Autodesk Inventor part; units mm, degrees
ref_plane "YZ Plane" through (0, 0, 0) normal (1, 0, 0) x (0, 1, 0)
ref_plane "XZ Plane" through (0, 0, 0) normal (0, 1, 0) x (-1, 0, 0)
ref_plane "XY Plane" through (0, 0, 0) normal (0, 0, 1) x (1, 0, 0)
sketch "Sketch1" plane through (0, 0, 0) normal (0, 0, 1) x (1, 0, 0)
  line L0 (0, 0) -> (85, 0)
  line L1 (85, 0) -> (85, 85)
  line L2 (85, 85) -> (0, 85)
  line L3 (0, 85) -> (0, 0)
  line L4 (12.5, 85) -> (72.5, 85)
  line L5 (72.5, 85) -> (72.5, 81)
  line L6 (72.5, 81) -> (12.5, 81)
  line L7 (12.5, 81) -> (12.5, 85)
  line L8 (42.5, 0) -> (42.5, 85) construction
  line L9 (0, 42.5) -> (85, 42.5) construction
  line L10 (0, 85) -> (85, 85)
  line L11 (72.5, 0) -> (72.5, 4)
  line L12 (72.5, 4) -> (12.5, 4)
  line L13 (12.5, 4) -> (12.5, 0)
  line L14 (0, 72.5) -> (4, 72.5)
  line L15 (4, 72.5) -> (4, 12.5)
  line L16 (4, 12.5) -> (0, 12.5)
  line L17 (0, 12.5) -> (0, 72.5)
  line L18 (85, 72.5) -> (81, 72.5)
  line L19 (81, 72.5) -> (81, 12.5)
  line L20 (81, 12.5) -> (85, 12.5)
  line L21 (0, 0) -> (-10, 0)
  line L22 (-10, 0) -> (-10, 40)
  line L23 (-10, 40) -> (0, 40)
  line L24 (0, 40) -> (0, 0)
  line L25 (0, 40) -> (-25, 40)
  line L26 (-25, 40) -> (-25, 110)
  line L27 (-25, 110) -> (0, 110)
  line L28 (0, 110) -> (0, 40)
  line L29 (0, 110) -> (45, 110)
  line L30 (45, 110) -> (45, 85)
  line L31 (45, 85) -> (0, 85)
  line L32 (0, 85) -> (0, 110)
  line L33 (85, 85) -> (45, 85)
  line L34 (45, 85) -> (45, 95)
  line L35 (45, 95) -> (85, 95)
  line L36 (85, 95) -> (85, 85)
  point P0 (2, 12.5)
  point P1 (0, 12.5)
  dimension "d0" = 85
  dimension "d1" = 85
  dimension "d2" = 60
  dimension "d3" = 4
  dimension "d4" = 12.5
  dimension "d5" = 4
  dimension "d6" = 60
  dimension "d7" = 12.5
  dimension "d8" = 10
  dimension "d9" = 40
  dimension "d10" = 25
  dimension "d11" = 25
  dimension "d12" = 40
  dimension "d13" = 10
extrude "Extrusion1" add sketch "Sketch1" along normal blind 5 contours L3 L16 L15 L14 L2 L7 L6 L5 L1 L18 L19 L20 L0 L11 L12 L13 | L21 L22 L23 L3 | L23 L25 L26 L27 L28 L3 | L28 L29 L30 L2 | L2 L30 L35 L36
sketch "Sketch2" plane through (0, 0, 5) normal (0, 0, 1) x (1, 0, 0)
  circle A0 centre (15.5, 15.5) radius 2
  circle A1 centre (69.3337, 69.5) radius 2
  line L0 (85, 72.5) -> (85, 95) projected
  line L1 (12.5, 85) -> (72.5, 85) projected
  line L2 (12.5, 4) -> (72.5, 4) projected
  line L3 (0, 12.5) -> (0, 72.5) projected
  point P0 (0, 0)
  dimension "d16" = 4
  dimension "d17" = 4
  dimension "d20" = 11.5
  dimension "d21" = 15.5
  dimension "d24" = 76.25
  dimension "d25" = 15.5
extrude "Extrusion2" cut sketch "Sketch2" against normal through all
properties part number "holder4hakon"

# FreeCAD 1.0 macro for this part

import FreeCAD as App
import Part
import Sketcher
from FreeCAD import Vector

doc = App.newDocument("Part")
body = doc.addObject("PartDesign::Body", "Body")

sketch1 = doc.addObject("Sketcher::SketchObject", "Sketch")
body.addObject(sketch1)
sketch1.AttachmentSupport = (doc.XY_Plane, [""])
sketch1.MapMode = "FlatFace"
sketch1.addGeometry([
    Part.LineSegment(Vector(85, 72.5, 0), Vector(85, 95, 0)),
    Part.LineSegment(Vector(85, 95, 0), Vector(45, 95, 0)),
    Part.LineSegment(Vector(45, 95, 0), Vector(45, 110, 0)),
    Part.LineSegment(Vector(45, 110, 0), Vector(-25, 110, 0)),
    Part.LineSegment(Vector(-25, 110, 0), Vector(-25, 40, 0)),
    Part.LineSegment(Vector(-25, 40, 0), Vector(-10, 40, 0)),
    Part.LineSegment(Vector(-10, 40, 0), Vector(-10, 0, 0)),
    Part.LineSegment(Vector(-10, 0, 0), Vector(12.5, 0, 0)),
    Part.LineSegment(Vector(12.5, 0, 0), Vector(12.5, 4, 0)),
    Part.LineSegment(Vector(12.5, 4, 0), Vector(72.5, 4, 0)),
    Part.LineSegment(Vector(72.5, 4, 0), Vector(72.5, 0, 0)),
    Part.LineSegment(Vector(72.5, 0, 0), Vector(85, 0, 0)),
    Part.LineSegment(Vector(85, 0, 0), Vector(85, 12.5, 0)),
    Part.LineSegment(Vector(85, 12.5, 0), Vector(81, 12.5, 0)),
    Part.LineSegment(Vector(81, 12.5, 0), Vector(81, 72.5, 0)),
    Part.LineSegment(Vector(81, 72.5, 0), Vector(85, 72.5, 0)),
    Part.LineSegment(Vector(4, 12.5, 0), Vector(0, 12.5, 0)),
    Part.LineSegment(Vector(0, 12.5, 0), Vector(0, 72.5, 0)),
    Part.LineSegment(Vector(0, 72.5, 0), Vector(4, 72.5, 0)),
    Part.LineSegment(Vector(4, 72.5, 0), Vector(4, 12.5, 0)),
    Part.LineSegment(Vector(12.5, 81, 0), Vector(12.5, 85, 0)),
    Part.LineSegment(Vector(12.5, 85, 0), Vector(72.5, 85, 0)),
    Part.LineSegment(Vector(72.5, 85, 0), Vector(72.5, 81, 0)),
    Part.LineSegment(Vector(72.5, 81, 0), Vector(12.5, 81, 0)),
], False)
sketch1.addConstraint([
    Sketcher.Constraint("Coincident", 0, 2, 1, 1),
    Sketcher.Constraint("Coincident", 1, 2, 2, 1),
    Sketcher.Constraint("Coincident", 2, 2, 3, 1),
    Sketcher.Constraint("Coincident", 3, 2, 4, 1),
    Sketcher.Constraint("Coincident", 4, 2, 5, 1),
    Sketcher.Constraint("Coincident", 5, 2, 6, 1),
    Sketcher.Constraint("Coincident", 6, 2, 7, 1),
    Sketcher.Constraint("Coincident", 7, 2, 8, 1),
    Sketcher.Constraint("Coincident", 8, 2, 9, 1),
    Sketcher.Constraint("Coincident", 9, 2, 10, 1),
    Sketcher.Constraint("Coincident", 10, 2, 11, 1),
    Sketcher.Constraint("Coincident", 11, 2, 12, 1),
    Sketcher.Constraint("Coincident", 12, 2, 13, 1),
    Sketcher.Constraint("Coincident", 13, 2, 14, 1),
    Sketcher.Constraint("Coincident", 14, 2, 15, 1),
    Sketcher.Constraint("Coincident", 15, 2, 0, 1),
    Sketcher.Constraint("Coincident", 16, 2, 17, 1),
    Sketcher.Constraint("Coincident", 17, 2, 18, 1),
    Sketcher.Constraint("Coincident", 18, 2, 19, 1),
    Sketcher.Constraint("Coincident", 19, 2, 16, 1),
    Sketcher.Constraint("Coincident", 20, 2, 21, 1),
    Sketcher.Constraint("Coincident", 21, 2, 22, 1),
    Sketcher.Constraint("Coincident", 22, 2, 23, 1),
    Sketcher.Constraint("Coincident", 23, 2, 20, 1),
    Sketcher.Constraint("Vertical", 0),
    Sketcher.Constraint("Horizontal", 1),
    Sketcher.Constraint("Vertical", 2),
    Sketcher.Constraint("Horizontal", 3),
    Sketcher.Constraint("Vertical", 4),
    Sketcher.Constraint("Horizontal", 5),
    Sketcher.Constraint("Vertical", 6),
    Sketcher.Constraint("Horizontal", 7),
    Sketcher.Constraint("Vertical", 8),
    Sketcher.Constraint("Horizontal", 9),
    Sketcher.Constraint("Vertical", 10),
    Sketcher.Constraint("Horizontal", 11),
    Sketcher.Constraint("Vertical", 12),
    Sketcher.Constraint("Horizontal", 13),
    Sketcher.Constraint("Vertical", 14),
    Sketcher.Constraint("Horizontal", 15),
    Sketcher.Constraint("Horizontal", 16),
    Sketcher.Constraint("Vertical", 17),
    Sketcher.Constraint("Horizontal", 18),
    Sketcher.Constraint("Vertical", 19),
    Sketcher.Constraint("Vertical", 20),
    Sketcher.Constraint("Horizontal", 21),
    Sketcher.Constraint("Vertical", 22),
    Sketcher.Constraint("Horizontal", 23),
    Sketcher.Constraint("PointOnObject", 6, 2, -1),
    Sketcher.Constraint("PointOnObject", 10, 2, -1),
    Sketcher.Constraint("PointOnObject", 16, 2, -2),
    Sketcher.Constraint("Horizontal", 13, 2, 16, 2),
    Sketcher.Constraint("Horizontal", 15, 2, 17, 2),
    Sketcher.Constraint("Vertical", 0, 2, 11, 2),
    Sketcher.Constraint("Vertical", 8, 2, 20, 2),
    Sketcher.Constraint("Vertical", 10, 2, 21, 2),
    Sketcher.Constraint("Equal", 15, 16),
    Sketcher.Constraint("Equal", 7, 0),
    Sketcher.Constraint("Equal", 5, 2),
    Sketcher.Constraint("Equal", 3, 4),
    Sketcher.Constraint("Equal", 1, 6),
    Sketcher.Constraint("Equal", 18, 8),
    Sketcher.Constraint("Equal", 11, 12),
    Sketcher.Constraint("Equal", 10, 20),
    Sketcher.Constraint("DistanceX", 1, 2, 1, 1, 40.0),
    Sketcher.Constraint("DistanceX", 9, 1, 9, 2, 60.0),
    Sketcher.Constraint("DistanceX", 13, 2, 13, 1, 4.0),
    Sketcher.Constraint("DistanceX", 11, 1, 11, 2, 12.5),
    Sketcher.Constraint("DistanceX", -1, 1, 0, 2, 85.0),
    Sketcher.Constraint("DistanceX", 3, 2, -1, 1, 25.0),
    Sketcher.Constraint("DistanceX", 5, 2, -1, 1, 10.0),
    Sketcher.Constraint("DistanceY", -1, 1, 20, 2, 85.0),
])
pad1 = doc.addObject("PartDesign::Pad", "Pad")
body.addObject(pad1)
pad1.Profile = sketch1
pad1.Length = 5

sketch2 = doc.addObject("Sketcher::SketchObject", "Sketch001")
body.addObject(sketch2)
sketch2.AttachmentSupport = (doc.XY_Plane, [""])
sketch2.MapMode = "FlatFace"
sketch2.AttachmentOffset = App.Placement(Vector(0, 0, 5), App.Rotation())
sketch2.addGeometry([
    Part.Circle(Vector(15.5, 15.5, 0), Vector(0, 0, 1), 2),
    Part.Circle(Vector(69.3, 69.5, 0), Vector(0, 0, 1), 2),
], False)
sketch2.addConstraint([
    Sketcher.Constraint("Equal", 0, 1),
    Sketcher.Constraint("Diameter", 0, 4.0),
    Sketcher.Constraint("DistanceX", -1, 1, 0, 3, 15.5),
    Sketcher.Constraint("DistanceY", -1, 1, 0, 3, 15.5),
    Sketcher.Constraint("DistanceY", 0, 3, 1, 3, 54.0),
    Sketcher.Constraint("DistanceX", -1, 1, 1, 3, 69.3337),
])
pocket1 = doc.addObject("PartDesign::Pocket", "Pocket")
body.addObject(pocket1)
pocket1.Profile = sketch2
pocket1.Type = "ThroughAll"

doc.recompute()
